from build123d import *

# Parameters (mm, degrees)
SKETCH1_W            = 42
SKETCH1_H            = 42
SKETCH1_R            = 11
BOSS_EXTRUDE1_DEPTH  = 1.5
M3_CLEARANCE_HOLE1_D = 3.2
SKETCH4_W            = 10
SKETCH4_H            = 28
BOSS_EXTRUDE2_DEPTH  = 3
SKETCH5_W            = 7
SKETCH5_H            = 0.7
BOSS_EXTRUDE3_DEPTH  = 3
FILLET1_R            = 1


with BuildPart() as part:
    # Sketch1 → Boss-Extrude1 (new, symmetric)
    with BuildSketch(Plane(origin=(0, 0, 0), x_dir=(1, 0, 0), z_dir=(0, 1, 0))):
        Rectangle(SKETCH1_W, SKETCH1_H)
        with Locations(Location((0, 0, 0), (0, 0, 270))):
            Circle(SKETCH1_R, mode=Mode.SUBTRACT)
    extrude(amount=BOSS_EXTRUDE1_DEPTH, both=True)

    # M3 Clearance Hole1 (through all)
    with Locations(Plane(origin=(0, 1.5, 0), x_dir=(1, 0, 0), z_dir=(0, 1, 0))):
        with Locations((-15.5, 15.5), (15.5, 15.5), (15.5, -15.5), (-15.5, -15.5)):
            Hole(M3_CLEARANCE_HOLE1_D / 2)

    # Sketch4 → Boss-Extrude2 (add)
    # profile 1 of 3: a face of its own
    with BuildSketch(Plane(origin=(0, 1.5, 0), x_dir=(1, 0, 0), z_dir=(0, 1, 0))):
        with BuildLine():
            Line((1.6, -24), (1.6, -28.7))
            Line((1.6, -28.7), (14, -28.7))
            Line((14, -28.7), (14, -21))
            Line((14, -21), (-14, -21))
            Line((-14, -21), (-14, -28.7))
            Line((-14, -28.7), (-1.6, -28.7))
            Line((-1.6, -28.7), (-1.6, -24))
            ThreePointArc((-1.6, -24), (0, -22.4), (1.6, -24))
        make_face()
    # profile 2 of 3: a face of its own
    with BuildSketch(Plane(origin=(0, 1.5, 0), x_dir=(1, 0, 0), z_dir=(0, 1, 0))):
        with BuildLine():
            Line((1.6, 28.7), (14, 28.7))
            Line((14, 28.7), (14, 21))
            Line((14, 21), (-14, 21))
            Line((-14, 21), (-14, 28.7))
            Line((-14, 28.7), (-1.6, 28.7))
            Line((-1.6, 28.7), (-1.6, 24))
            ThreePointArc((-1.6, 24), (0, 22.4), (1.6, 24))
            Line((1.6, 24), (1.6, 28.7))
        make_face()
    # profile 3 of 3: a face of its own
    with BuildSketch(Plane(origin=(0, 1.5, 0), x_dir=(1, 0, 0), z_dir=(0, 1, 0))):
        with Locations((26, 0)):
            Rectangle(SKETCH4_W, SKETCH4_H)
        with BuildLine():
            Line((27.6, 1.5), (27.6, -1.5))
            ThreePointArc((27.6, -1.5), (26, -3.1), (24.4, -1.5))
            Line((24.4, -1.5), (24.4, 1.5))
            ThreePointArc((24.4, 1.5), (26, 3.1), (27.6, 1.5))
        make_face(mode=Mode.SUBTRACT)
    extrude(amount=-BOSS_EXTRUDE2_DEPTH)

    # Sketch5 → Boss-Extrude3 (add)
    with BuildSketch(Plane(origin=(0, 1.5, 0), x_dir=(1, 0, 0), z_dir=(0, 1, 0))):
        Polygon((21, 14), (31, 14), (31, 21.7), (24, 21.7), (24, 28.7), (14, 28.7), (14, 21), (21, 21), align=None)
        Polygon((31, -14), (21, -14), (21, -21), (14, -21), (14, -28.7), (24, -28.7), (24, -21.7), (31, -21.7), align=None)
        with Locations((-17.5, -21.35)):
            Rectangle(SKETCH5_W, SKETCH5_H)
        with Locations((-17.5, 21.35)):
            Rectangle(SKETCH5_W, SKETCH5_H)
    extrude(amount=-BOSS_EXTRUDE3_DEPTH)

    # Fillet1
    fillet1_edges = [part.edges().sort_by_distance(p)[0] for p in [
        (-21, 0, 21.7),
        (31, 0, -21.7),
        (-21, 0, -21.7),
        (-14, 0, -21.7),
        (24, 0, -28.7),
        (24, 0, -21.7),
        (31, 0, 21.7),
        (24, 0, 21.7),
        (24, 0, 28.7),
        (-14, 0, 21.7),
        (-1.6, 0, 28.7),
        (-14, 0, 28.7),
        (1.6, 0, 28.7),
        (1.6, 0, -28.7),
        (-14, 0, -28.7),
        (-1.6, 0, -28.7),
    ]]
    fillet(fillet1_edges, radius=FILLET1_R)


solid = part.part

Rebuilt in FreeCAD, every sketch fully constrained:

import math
import FreeCAD as App
import Part
import Sketcher
Q = App.Units.Quantity


def edges_at(feature, points):
    """Names of the edges that pass closest to the given points."""
    edges = feature.Shape.Edges
    near = lambda p: min(range(len(edges)), key=lambda i: edges[i].distToShape(Part.Vertex(*p))[0])
    return sorted({f"Edge{near(p) + 1}" for p in points})

doc = App.newDocument("Part")
body = doc.addObject("PartDesign::Body", "Body")

sketch1 = body.newObject("Sketcher::SketchObject", "Sketch")
sketch1.AttachmentSupport = (doc.getObject("XZ_Plane"), [""])
sketch1.MapMode = "FlatFace"
sketch1.addGeometry(Part.LineSegment(App.Vector(-21, -21, 0), App.Vector(-21, 21, 0)), False)
sketch1.addGeometry(Part.LineSegment(App.Vector(-21, 21, 0), App.Vector(21, 21, 0)), False)
sketch1.addGeometry(Part.LineSegment(App.Vector(21, 21, 0), App.Vector(21, -21, 0)), False)
sketch1.addGeometry(Part.LineSegment(App.Vector(21, -21, 0), App.Vector(-21, -21, 0)), False)
sketch1.addGeometry(Part.Circle(App.Vector(0, 0, 0), App.Vector(0, 0, 1), 11), False)
sketch1.addConstraint(Sketcher.Constraint("Coincident", 0, 2, 1, 1))
sketch1.addConstraint(Sketcher.Constraint("Coincident", 1, 2, 2, 1))
sketch1.addConstraint(Sketcher.Constraint("Coincident", 2, 2, 3, 1))
sketch1.addConstraint(Sketcher.Constraint("Coincident", 3, 2, 0, 1))
sketch1.addConstraint(Sketcher.Constraint("Vertical", 0))
sketch1.addConstraint(Sketcher.Constraint("Horizontal", 1))
sketch1.addConstraint(Sketcher.Constraint("Vertical", 2))
sketch1.addConstraint(Sketcher.Constraint("Horizontal", 3))
sketch1.addConstraint(Sketcher.Constraint("Coincident", 4, 3, -1, 1))
sketch1.addConstraint(Sketcher.Constraint("Symmetric", 0, 2, 2, 2, -1, 1))
sketch1.addConstraint(Sketcher.Constraint("Equal", 3, 0))
sketch1.addConstraint(Sketcher.Constraint("Diameter", 4, Q("22 mm")))
sketch1.addConstraint(Sketcher.Constraint("DistanceX", 1, 1, 1, 2, Q("42 mm")))
pad1 = body.newObject("PartDesign::Pad", "Pad")
pad1.Profile = sketch1
pad1.Length = 3
pad1.Midplane = True

sketch2 = body.newObject("Sketcher::SketchObject", "Sketch001")
sketch2.AttachmentSupport = (doc.getObject("XZ_Plane"), [""])
sketch2.MapMode = "FlatFace"
sketch2.AttachmentOffset = App.Placement(App.Vector(0, 0, -1.5), App.Rotation())
sketch2.addGeometry(Part.Circle(App.Vector(-15.5, -15.5, 0), App.Vector(0, 0, 1), 1.6), False)
sketch2.addGeometry(Part.Circle(App.Vector(15.5, -15.5, 0), App.Vector(0, 0, 1), 1.6), False)
sketch2.addGeometry(Part.Circle(App.Vector(15.5, 15.5, 0), App.Vector(0, 0, 1), 1.6), False)
sketch2.addGeometry(Part.Circle(App.Vector(-15.5, 15.5, 0), App.Vector(0, 0, 1), 1.6), False)
sketch2.addConstraint(Sketcher.Constraint("Equal", 0, 1))
sketch2.addConstraint(Sketcher.Constraint("Equal", 1, 2))
sketch2.addConstraint(Sketcher.Constraint("Equal", 2, 3))
sketch2.addConstraint(Sketcher.Constraint("Symmetric", 0, 3, 2, 3, -1, 1))
sketch2.addConstraint(Sketcher.Constraint("Symmetric", 1, 3, 3, 3, -1, 1))
sketch2.addConstraint(Sketcher.Constraint("Symmetric", 0, 3, 1, 3, -2))
sketch2.addConstraint(Sketcher.Constraint("Diameter", 0, Q("3.2 mm")))
sketch2.addConstraint(Sketcher.Constraint("DistanceX", 0, 3, 1, 3, Q("31 mm")))
sketch2.addConstraint(Sketcher.Constraint("DistanceY", 1, 3, 2, 3, Q("31 mm")))
doc.recompute()
hole = body.newObject("PartDesign::Hole", "Hole")
hole.Profile = sketch2
hole.ThreadType = "None"
hole.Diameter = 3.2
hole.DepthType = "ThroughAll"
hole.Reversed = True

sketch3 = body.newObject("Sketcher::SketchObject", "Sketch002")
sketch3.AttachmentSupport = (doc.getObject("XZ_Plane"), [""])
sketch3.MapMode = "FlatFace"
sketch3.AttachmentOffset = App.Placement(App.Vector(0, 0, -1.5), App.Rotation())
sketch3.addGeometry(Part.LineSegment(App.Vector(1.6, 24, 0), App.Vector(1.6, 28.7, 0)), False)
sketch3.addGeometry(Part.LineSegment(App.Vector(1.6, 28.7, 0), App.Vector(14, 28.7, 0)), False)
sketch3.addGeometry(Part.LineSegment(App.Vector(14, 28.7, 0), App.Vector(14, 21, 0)), False)
sketch3.addGeometry(Part.LineSegment(App.Vector(14, 21, 0), App.Vector(-14, 21, 0)), False)
sketch3.addGeometry(Part.LineSegment(App.Vector(-14, 21, 0), App.Vector(-14, 28.7, 0)), False)
sketch3.addGeometry(Part.LineSegment(App.Vector(-14, 28.7, 0), App.Vector(-1.6, 28.7, 0)), False)
sketch3.addGeometry(Part.LineSegment(App.Vector(-1.6, 28.7, 0), App.Vector(-1.6, 24, 0)), False)
sketch3.addGeometry(Part.ArcOfCircle(Part.Circle(App.Vector(0, 24, 0), App.Vector(0, 0, 1), 1.6), math.radians(180), math.radians(360)), False)
sketch3.addGeometry(Part.LineSegment(App.Vector(14, -28.7, 0), App.Vector(1.6, -28.7, 0)), False)
sketch3.addGeometry(Part.LineSegment(App.Vector(1.6, -28.7, 0), App.Vector(1.6, -24, 0)), False)
sketch3.addGeometry(Part.ArcOfCircle(Part.Circle(App.Vector(0, -24, 0), App.Vector(0, 0, 1), 1.6), math.radians(0), math.radians(180)), False)
sketch3.addGeometry(Part.LineSegment(App.Vector(-1.6, -24, 0), App.Vector(-1.6, -28.7, 0)), False)
sketch3.addGeometry(Part.LineSegment(App.Vector(-1.6, -28.7, 0), App.Vector(-14, -28.7, 0)), False)
sketch3.addGeometry(Part.LineSegment(App.Vector(-14, -28.7, 0), App.Vector(-14, -21, 0)), False)
sketch3.addGeometry(Part.LineSegment(App.Vector(-14, -21, 0), App.Vector(14, -21, 0)), False)
sketch3.addGeometry(Part.LineSegment(App.Vector(14, -21, 0), App.Vector(14, -28.7, 0)), False)
sketch3.addGeometry(Part.LineSegment(App.Vector(21, -14, 0), App.Vector(21, 14, 0)), False)
sketch3.addGeometry(Part.LineSegment(App.Vector(21, 14, 0), App.Vector(31, 14, 0)), False)
sketch3.addGeometry(Part.LineSegment(App.Vector(31, 14, 0), App.Vector(31, -14, 0)), False)
sketch3.addGeometry(Part.LineSegment(App.Vector(31, -14, 0), App.Vector(21, -14, 0)), False)
sketch3.addGeometry(Part.ArcOfCircle(Part.Circle(App.Vector(26, -1.5, 0), App.Vector(0, 0, 1), 1.6), math.radians(180), math.radians(360)), False)
sketch3.addGeometry(Part.LineSegment(App.Vector(27.6, -1.5, 0), App.Vector(27.6, 1.5, 0)), False)
sketch3.addGeometry(Part.ArcOfCircle(Part.Circle(App.Vector(26, 1.5, 0), App.Vector(0, 0, 1), 1.6), math.radians(0), math.radians(180)), False)
sketch3.addGeometry(Part.LineSegment(App.Vector(24.4, 1.5, 0), App.Vector(24.4, -1.5, 0)), False)
sketch3.addConstraint(Sketcher.Constraint("Coincident", 0, 2, 1, 1))
sketch3.addConstraint(Sketcher.Constraint("Coincident", 1, 2, 2, 1))
sketch3.addConstraint(Sketcher.Constraint("Coincident", 2, 2, 3, 1))
sketch3.addConstraint(Sketcher.Constraint("Coincident", 3, 2, 4, 1))
sketch3.addConstraint(Sketcher.Constraint("Coincident", 4, 2, 5, 1))
sketch3.addConstraint(Sketcher.Constraint("Coincident", 5, 2, 6, 1))
sketch3.addConstraint(Sketcher.Constraint("Tangent", 6, 2, 7, 1))
sketch3.addConstraint(Sketcher.Constraint("Tangent", 7, 2, 0, 1))
sketch3.addConstraint(Sketcher.Constraint("Coincident", 8, 2, 9, 1))
sketch3.addConstraint(Sketcher.Constraint("Tangent", 9, 2, 10, 1))
sketch3.addConstraint(Sketcher.Constraint("Tangent", 10, 2, 11, 1))
sketch3.addConstraint(Sketcher.Constraint("Coincident", 11, 2, 12, 1))
sketch3.addConstraint(Sketcher.Constraint("Coincident", 12, 2, 13, 1))
sketch3.addConstraint(Sketcher.Constraint("Coincident", 13, 2, 14, 1))
sketch3.addConstraint(Sketcher.Constraint("Coincident", 14, 2, 15, 1))
sketch3.addConstraint(Sketcher.Constraint("Coincident", 15, 2, 8, 1))
sketch3.addConstraint(Sketcher.Constraint("Coincident", 16, 2, 17, 1))
sketch3.addConstraint(Sketcher.Constraint("Coincident", 17, 2, 18, 1))
sketch3.addConstraint(Sketcher.Constraint("Coincident", 18, 2, 19, 1))
sketch3.addConstraint(Sketcher.Constraint("Coincident", 19, 2, 16, 1))
sketch3.addConstraint(Sketcher.Constraint("Tangent", 20, 2, 21, 1))
sketch3.addConstraint(Sketcher.Constraint("Tangent", 21, 2, 22, 1))
sketch3.addConstraint(Sketcher.Constraint("Tangent", 22, 2, 23, 1))
sketch3.addConstraint(Sketcher.Constraint("Tangent", 23, 2, 20, 1))
sketch3.addConstraint(Sketcher.Constraint("Vertical", 0))
sketch3.addConstraint(Sketcher.Constraint("Horizontal", 1))
sketch3.addConstraint(Sketcher.Constraint("Vertical", 2))
sketch3.addConstraint(Sketcher.Constraint("Horizontal", 3))
sketch3.addConstraint(Sketcher.Constraint("Vertical", 4))
sketch3.addConstraint(Sketcher.Constraint("Horizontal", 5))
sketch3.addConstraint(Sketcher.Constraint("Vertical", 6))
sketch3.addConstraint(Sketcher.Constraint("Horizontal", 8))
sketch3.addConstraint(Sketcher.Constraint("Vertical", 9))
sketch3.addConstraint(Sketcher.Constraint("Vertical", 11))
sketch3.addConstraint(Sketcher.Constraint("Horizontal", 12))
sketch3.addConstraint(Sketcher.Constraint("Vertical", 13))
sketch3.addConstraint(Sketcher.Constraint("Horizontal", 14))
sketch3.addConstraint(Sketcher.Constraint("Vertical", 15))
sketch3.addConstraint(Sketcher.Constraint("Vertical", 16))
sketch3.addConstraint(Sketcher.Constraint("Horizontal", 17))
sketch3.addConstraint(Sketcher.Constraint("Vertical", 18))
sketch3.addConstraint(Sketcher.Constraint("Horizontal", 19))
sketch3.addConstraint(Sketcher.Constraint("Vertical", 21))
sketch3.addConstraint(Sketcher.Constraint("Vertical", 23))
sketch3.addConstraint(Sketcher.Constraint("Equal", 7, 10))
sketch3.addConstraint(Sketcher.Constraint("Equal", 10, 20))
sketch3.addConstraint(Sketcher.Constraint("Symmetric", 7, 3, 10, 3, -1, 1))
sketch3.addConstraint(Sketcher.Constraint("Symmetric", 1, 2, 12, 2, -1, 1))
sketch3.addConstraint(Sketcher.Constraint("Symmetric", 3, 2, 14, 2, -1, 1))
sketch3.addConstraint(Sketcher.Constraint("Symmetric", 1, 2, 4, 2, -2))
sketch3.addConstraint(Sketcher.Constraint("Symmetric", 8, 2, 11, 2, -2))
sketch3.addConstraint(Sketcher.Constraint("Equal", 14, 16))
sketch3.addConstraint(Sketcher.Constraint("Radius", 7, Q("1.6 mm")))
sketch3.addConstraint(Sketcher.Constraint("DistanceX", 3, 2, 3, 1, Q("28 mm")))
sketch3.addConstraint(Sketcher.Constraint("DistanceX", 17, 1, 17, 2, Q("10 mm")))
sketch3.addConstraint(Sketcher.Constraint("DistanceY", 21, 1, 21, 2, Q("3 mm")))
sketch3.addConstraint(Sketcher.Constraint("DistanceY", 0, 1, 0, 2, Q("4.7 mm")))
sketch3.addConstraint(Sketcher.Constraint("DistanceY", 2, 2, 2, 1, Q("7.7 mm")))
sketch3.addConstraint(Sketcher.Constraint("DistanceY", -1, 1, 7, 3, Q("24 mm")))
sketch3.addConstraint(Sketcher.Constraint("DistanceX", -1, 1, 20, 3, Q("26 mm")))
sketch3.addConstraint(Sketcher.Constraint("DistanceX", -1, 1, 16, 2, Q("21 mm")))
sketch3.addConstraint(Sketcher.Constraint("DistanceY", -1, 1, 16, 2, Q("14 mm")))
sketch3.addConstraint(Sketcher.Constraint("DistanceY", 20, 3, -1, 1, Q("1.5 mm")))
pad2 = body.newObject("PartDesign::Pad", "Pad001")
pad2.Profile = sketch3
pad2.Length = 3

sketch4 = body.newObject("Sketcher::SketchObject", "Sketch003")
sketch4.AttachmentSupport = (doc.getObject("XZ_Plane"), [""])
sketch4.MapMode = "FlatFace"
sketch4.AttachmentOffset = App.Placement(App.Vector(0, 0, -1.5), App.Rotation())
sketch4.addGeometry(Part.LineSegment(App.Vector(21, -14, 0), App.Vector(31, -14, 0)), False)
sketch4.addGeometry(Part.LineSegment(App.Vector(31, -14, 0), App.Vector(31, -21.7, 0)), False)
sketch4.addGeometry(Part.LineSegment(App.Vector(31, -21.7, 0), App.Vector(24, -21.7, 0)), False)
sketch4.addGeometry(Part.LineSegment(App.Vector(24, -21.7, 0), App.Vector(24, -28.7, 0)), False)
sketch4.addGeometry(Part.LineSegment(App.Vector(24, -28.7, 0), App.Vector(14, -28.7, 0)), False)
sketch4.addGeometry(Part.LineSegment(App.Vector(14, -28.7, 0), App.Vector(14, -21, 0)), False)
sketch4.addGeometry(Part.LineSegment(App.Vector(14, -21, 0), App.Vector(21, -21, 0)), False)
sketch4.addGeometry(Part.LineSegment(App.Vector(21, -21, 0), App.Vector(21, -14, 0)), False)
sketch4.addGeometry(Part.LineSegment(App.Vector(31, 14, 0), App.Vector(21, 14, 0)), False)
sketch4.addGeometry(Part.LineSegment(App.Vector(21, 14, 0), App.Vector(21, 21, 0)), False)
sketch4.addGeometry(Part.LineSegment(App.Vector(21, 21, 0), App.Vector(14, 21, 0)), False)
sketch4.addGeometry(Part.LineSegment(App.Vector(14, 21, 0), App.Vector(14, 28.7, 0)), False)
sketch4.addGeometry(Part.LineSegment(App.Vector(14, 28.7, 0), App.Vector(24, 28.7, 0)), False)
sketch4.addGeometry(Part.LineSegment(App.Vector(24, 28.7, 0), App.Vector(24, 21.7, 0)), False)
sketch4.addGeometry(Part.LineSegment(App.Vector(24, 21.7, 0), App.Vector(31, 21.7, 0)), False)
sketch4.addGeometry(Part.LineSegment(App.Vector(31, 21.7, 0), App.Vector(31, 14, 0)), False)
sketch4.addGeometry(Part.LineSegment(App.Vector(-21, 21, 0), App.Vector(-21, 21.7, 0)), False)
sketch4.addGeometry(Part.LineSegment(App.Vector(-21, 21.7, 0), App.Vector(-14, 21.7, 0)), False)
sketch4.addGeometry(Part.LineSegment(App.Vector(-14, 21.7, 0), App.Vector(-14, 21, 0)), False)
sketch4.addGeometry(Part.LineSegment(App.Vector(-14, 21, 0), App.Vector(-21, 21, 0)), False)
sketch4.addGeometry(Part.LineSegment(App.Vector(-21, -21.7, 0), App.Vector(-21, -21, 0)), False)
sketch4.addGeometry(Part.LineSegment(App.Vector(-21, -21, 0), App.Vector(-14, -21, 0)), False)
sketch4.addGeometry(Part.LineSegment(App.Vector(-14, -21, 0), App.Vector(-14, -21.7, 0)), False)
sketch4.addGeometry(Part.LineSegment(App.Vector(-14, -21.7, 0), App.Vector(-21, -21.7, 0)), False)
sketch4.addConstraint(Sketcher.Constraint("Coincident", 0, 2, 1, 1))
sketch4.addConstraint(Sketcher.Constraint("Coincident", 1, 2, 2, 1))
sketch4.addConstraint(Sketcher.Constraint("Coincident", 2, 2, 3, 1))
sketch4.addConstraint(Sketcher.Constraint("Coincident", 3, 2, 4, 1))
sketch4.addConstraint(Sketcher.Constraint("Coincident", 4, 2, 5, 1))
sketch4.addConstraint(Sketcher.Constraint("Coincident", 5, 2, 6, 1))
sketch4.addConstraint(Sketcher.Constraint("Coincident", 6, 2, 7, 1))
sketch4.addConstraint(Sketcher.Constraint("Coincident", 7, 2, 0, 1))
sketch4.addConstraint(Sketcher.Constraint("Coincident", 8, 2, 9, 1))
sketch4.addConstraint(Sketcher.Constraint("Coincident", 9, 2, 10, 1))
sketch4.addConstraint(Sketcher.Constraint("Coincident", 10, 2, 11, 1))
sketch4.addConstraint(Sketcher.Constraint("Coincident", 11, 2, 12, 1))
sketch4.addConstraint(Sketcher.Constraint("Coincident", 12, 2, 13, 1))
sketch4.addConstraint(Sketcher.Constraint("Coincident", 13, 2, 14, 1))
sketch4.addConstraint(Sketcher.Constraint("Coincident", 14, 2, 15, 1))
sketch4.addConstraint(Sketcher.Constraint("Coincident", 15, 2, 8, 1))
sketch4.addConstraint(Sketcher.Constraint("Coincident", 16, 2, 17, 1))
sketch4.addConstraint(Sketcher.Constraint("Coincident", 17, 2, 18, 1))
sketch4.addConstraint(Sketcher.Constraint("Coincident", 18, 2, 19, 1))
sketch4.addConstraint(Sketcher.Constraint("Coincident", 19, 2, 16, 1))
sketch4.addConstraint(Sketcher.Constraint("Coincident", 20, 2, 21, 1))
sketch4.addConstraint(Sketcher.Constraint("Coincident", 21, 2, 22, 1))
sketch4.addConstraint(Sketcher.Constraint("Coincident", 22, 2, 23, 1))
sketch4.addConstraint(Sketcher.Constraint("Coincident", 23, 2, 20, 1))
sketch4.addConstraint(Sketcher.Constraint("Horizontal", 0))
sketch4.addConstraint(Sketcher.Constraint("Vertical", 1))
sketch4.addConstraint(Sketcher.Constraint("Horizontal", 2))
sketch4.addConstraint(Sketcher.Constraint("Vertical", 3))
sketch4.addConstraint(Sketcher.Constraint("Horizontal", 4))
sketch4.addConstraint(Sketcher.Constraint("Vertical", 5))
sketch4.addConstraint(Sketcher.Constraint("Horizontal", 6))
sketch4.addConstraint(Sketcher.Constraint("Vertical", 7))
sketch4.addConstraint(Sketcher.Constraint("Horizontal", 8))
sketch4.addConstraint(Sketcher.Constraint("Vertical", 9))
sketch4.addConstraint(Sketcher.Constraint("Horizontal", 10))
sketch4.addConstraint(Sketcher.Constraint("Vertical", 11))
sketch4.addConstraint(Sketcher.Constraint("Horizontal", 12))
sketch4.addConstraint(Sketcher.Constraint("Vertical", 13))
sketch4.addConstraint(Sketcher.Constraint("Horizontal", 14))
sketch4.addConstraint(Sketcher.Constraint("Vertical", 15))
sketch4.addConstraint(Sketcher.Constraint("Vertical", 16))
sketch4.addConstraint(Sketcher.Constraint("Horizontal", 17))
sketch4.addConstraint(Sketcher.Constraint("Vertical", 18))
sketch4.addConstraint(Sketcher.Constraint("Horizontal", 19))
sketch4.addConstraint(Sketcher.Constraint("Vertical", 20))
sketch4.addConstraint(Sketcher.Constraint("Horizontal", 21))
sketch4.addConstraint(Sketcher.Constraint("Vertical", 22))
sketch4.addConstraint(Sketcher.Constraint("Horizontal", 23))
sketch4.addConstraint(Sketcher.Constraint("Symmetric", 5, 2, 18, 2, -1, 1))
sketch4.addConstraint(Sketcher.Constraint("Symmetric", 9, 2, 20, 2, -1, 1))
sketch4.addConstraint(Sketcher.Constraint("Symmetric", 10, 2, 18, 2, -2))
sketch4.addConstraint(Sketcher.Constraint("Symmetric", 7, 2, 8, 2, -1))
sketch4.addConstraint(Sketcher.Constraint("Symmetric", 3, 2, 12, 2, -1))
sketch4.addConstraint(Sketcher.Constraint("Symmetric", 1, 2, 14, 2, -1))
sketch4.addConstraint(Sketcher.Constraint("Symmetric", 17, 2, 22, 2, -1))
sketch4.addConstraint(Sketcher.Constraint("Horizontal", 14, 2, 16, 2))
sketch4.addConstraint(Sketcher.Constraint("Vertical", 19, 2, 20, 2))
sketch4.addConstraint(Sketcher.Constraint("Equal", 0, 4))
sketch4.addConstraint(Sketcher.Constraint("Equal", 23, 3))
sketch4.addConstraint(Sketcher.Constraint("Equal", 1, 5))
sketch4.addConstraint(Sketcher.Constraint("DistanceX", 0, 1, 0, 2, Q("10 mm")))
sketch4.addConstraint(Sketcher.Constraint("DistanceX", 2, 2, 2, 1, Q("7 mm")))
sketch4.addConstraint(Sketcher.Constraint("DistanceY", 1, 2, 1, 1, Q("7.7 mm")))
sketch4.addConstraint(Sketcher.Constraint("DistanceX", -1, 1, 0, 2, Q("31 mm")))
sketch4.addConstraint(Sketcher.Constraint("DistanceY", 0, 2, -1, 1, Q("14 mm")))
pad3 = body.newObject("PartDesign::Pad", "Pad002")
pad3.Profile = sketch4
pad3.Length = 3
doc.recompute()

fillet = body.newObject("PartDesign::Fillet", "Fillet")
fillet.Base = (pad3, edges_at(pad3, [
    (-21, 0, 21.7),
    (31, 0, -21.7),
    (-21, 0, -21.7),
    (-14, 0, -21.7),
    (24, 0, -28.7),
    (24, 0, -21.7),
    (31, 0, 21.7),
    (24, 0, 21.7),
    (24, 0, 28.7),
    (-14, 0, 21.7),
    (-1.6, 0, 28.7),
    (-14, 0, 28.7),
    (1.6, 0, 28.7),
    (1.6, 0, -28.7),
    (-14, 0, -28.7),
    (-1.6, 0, -28.7),
]))
fillet.Radius = 1

doc.recompute()
